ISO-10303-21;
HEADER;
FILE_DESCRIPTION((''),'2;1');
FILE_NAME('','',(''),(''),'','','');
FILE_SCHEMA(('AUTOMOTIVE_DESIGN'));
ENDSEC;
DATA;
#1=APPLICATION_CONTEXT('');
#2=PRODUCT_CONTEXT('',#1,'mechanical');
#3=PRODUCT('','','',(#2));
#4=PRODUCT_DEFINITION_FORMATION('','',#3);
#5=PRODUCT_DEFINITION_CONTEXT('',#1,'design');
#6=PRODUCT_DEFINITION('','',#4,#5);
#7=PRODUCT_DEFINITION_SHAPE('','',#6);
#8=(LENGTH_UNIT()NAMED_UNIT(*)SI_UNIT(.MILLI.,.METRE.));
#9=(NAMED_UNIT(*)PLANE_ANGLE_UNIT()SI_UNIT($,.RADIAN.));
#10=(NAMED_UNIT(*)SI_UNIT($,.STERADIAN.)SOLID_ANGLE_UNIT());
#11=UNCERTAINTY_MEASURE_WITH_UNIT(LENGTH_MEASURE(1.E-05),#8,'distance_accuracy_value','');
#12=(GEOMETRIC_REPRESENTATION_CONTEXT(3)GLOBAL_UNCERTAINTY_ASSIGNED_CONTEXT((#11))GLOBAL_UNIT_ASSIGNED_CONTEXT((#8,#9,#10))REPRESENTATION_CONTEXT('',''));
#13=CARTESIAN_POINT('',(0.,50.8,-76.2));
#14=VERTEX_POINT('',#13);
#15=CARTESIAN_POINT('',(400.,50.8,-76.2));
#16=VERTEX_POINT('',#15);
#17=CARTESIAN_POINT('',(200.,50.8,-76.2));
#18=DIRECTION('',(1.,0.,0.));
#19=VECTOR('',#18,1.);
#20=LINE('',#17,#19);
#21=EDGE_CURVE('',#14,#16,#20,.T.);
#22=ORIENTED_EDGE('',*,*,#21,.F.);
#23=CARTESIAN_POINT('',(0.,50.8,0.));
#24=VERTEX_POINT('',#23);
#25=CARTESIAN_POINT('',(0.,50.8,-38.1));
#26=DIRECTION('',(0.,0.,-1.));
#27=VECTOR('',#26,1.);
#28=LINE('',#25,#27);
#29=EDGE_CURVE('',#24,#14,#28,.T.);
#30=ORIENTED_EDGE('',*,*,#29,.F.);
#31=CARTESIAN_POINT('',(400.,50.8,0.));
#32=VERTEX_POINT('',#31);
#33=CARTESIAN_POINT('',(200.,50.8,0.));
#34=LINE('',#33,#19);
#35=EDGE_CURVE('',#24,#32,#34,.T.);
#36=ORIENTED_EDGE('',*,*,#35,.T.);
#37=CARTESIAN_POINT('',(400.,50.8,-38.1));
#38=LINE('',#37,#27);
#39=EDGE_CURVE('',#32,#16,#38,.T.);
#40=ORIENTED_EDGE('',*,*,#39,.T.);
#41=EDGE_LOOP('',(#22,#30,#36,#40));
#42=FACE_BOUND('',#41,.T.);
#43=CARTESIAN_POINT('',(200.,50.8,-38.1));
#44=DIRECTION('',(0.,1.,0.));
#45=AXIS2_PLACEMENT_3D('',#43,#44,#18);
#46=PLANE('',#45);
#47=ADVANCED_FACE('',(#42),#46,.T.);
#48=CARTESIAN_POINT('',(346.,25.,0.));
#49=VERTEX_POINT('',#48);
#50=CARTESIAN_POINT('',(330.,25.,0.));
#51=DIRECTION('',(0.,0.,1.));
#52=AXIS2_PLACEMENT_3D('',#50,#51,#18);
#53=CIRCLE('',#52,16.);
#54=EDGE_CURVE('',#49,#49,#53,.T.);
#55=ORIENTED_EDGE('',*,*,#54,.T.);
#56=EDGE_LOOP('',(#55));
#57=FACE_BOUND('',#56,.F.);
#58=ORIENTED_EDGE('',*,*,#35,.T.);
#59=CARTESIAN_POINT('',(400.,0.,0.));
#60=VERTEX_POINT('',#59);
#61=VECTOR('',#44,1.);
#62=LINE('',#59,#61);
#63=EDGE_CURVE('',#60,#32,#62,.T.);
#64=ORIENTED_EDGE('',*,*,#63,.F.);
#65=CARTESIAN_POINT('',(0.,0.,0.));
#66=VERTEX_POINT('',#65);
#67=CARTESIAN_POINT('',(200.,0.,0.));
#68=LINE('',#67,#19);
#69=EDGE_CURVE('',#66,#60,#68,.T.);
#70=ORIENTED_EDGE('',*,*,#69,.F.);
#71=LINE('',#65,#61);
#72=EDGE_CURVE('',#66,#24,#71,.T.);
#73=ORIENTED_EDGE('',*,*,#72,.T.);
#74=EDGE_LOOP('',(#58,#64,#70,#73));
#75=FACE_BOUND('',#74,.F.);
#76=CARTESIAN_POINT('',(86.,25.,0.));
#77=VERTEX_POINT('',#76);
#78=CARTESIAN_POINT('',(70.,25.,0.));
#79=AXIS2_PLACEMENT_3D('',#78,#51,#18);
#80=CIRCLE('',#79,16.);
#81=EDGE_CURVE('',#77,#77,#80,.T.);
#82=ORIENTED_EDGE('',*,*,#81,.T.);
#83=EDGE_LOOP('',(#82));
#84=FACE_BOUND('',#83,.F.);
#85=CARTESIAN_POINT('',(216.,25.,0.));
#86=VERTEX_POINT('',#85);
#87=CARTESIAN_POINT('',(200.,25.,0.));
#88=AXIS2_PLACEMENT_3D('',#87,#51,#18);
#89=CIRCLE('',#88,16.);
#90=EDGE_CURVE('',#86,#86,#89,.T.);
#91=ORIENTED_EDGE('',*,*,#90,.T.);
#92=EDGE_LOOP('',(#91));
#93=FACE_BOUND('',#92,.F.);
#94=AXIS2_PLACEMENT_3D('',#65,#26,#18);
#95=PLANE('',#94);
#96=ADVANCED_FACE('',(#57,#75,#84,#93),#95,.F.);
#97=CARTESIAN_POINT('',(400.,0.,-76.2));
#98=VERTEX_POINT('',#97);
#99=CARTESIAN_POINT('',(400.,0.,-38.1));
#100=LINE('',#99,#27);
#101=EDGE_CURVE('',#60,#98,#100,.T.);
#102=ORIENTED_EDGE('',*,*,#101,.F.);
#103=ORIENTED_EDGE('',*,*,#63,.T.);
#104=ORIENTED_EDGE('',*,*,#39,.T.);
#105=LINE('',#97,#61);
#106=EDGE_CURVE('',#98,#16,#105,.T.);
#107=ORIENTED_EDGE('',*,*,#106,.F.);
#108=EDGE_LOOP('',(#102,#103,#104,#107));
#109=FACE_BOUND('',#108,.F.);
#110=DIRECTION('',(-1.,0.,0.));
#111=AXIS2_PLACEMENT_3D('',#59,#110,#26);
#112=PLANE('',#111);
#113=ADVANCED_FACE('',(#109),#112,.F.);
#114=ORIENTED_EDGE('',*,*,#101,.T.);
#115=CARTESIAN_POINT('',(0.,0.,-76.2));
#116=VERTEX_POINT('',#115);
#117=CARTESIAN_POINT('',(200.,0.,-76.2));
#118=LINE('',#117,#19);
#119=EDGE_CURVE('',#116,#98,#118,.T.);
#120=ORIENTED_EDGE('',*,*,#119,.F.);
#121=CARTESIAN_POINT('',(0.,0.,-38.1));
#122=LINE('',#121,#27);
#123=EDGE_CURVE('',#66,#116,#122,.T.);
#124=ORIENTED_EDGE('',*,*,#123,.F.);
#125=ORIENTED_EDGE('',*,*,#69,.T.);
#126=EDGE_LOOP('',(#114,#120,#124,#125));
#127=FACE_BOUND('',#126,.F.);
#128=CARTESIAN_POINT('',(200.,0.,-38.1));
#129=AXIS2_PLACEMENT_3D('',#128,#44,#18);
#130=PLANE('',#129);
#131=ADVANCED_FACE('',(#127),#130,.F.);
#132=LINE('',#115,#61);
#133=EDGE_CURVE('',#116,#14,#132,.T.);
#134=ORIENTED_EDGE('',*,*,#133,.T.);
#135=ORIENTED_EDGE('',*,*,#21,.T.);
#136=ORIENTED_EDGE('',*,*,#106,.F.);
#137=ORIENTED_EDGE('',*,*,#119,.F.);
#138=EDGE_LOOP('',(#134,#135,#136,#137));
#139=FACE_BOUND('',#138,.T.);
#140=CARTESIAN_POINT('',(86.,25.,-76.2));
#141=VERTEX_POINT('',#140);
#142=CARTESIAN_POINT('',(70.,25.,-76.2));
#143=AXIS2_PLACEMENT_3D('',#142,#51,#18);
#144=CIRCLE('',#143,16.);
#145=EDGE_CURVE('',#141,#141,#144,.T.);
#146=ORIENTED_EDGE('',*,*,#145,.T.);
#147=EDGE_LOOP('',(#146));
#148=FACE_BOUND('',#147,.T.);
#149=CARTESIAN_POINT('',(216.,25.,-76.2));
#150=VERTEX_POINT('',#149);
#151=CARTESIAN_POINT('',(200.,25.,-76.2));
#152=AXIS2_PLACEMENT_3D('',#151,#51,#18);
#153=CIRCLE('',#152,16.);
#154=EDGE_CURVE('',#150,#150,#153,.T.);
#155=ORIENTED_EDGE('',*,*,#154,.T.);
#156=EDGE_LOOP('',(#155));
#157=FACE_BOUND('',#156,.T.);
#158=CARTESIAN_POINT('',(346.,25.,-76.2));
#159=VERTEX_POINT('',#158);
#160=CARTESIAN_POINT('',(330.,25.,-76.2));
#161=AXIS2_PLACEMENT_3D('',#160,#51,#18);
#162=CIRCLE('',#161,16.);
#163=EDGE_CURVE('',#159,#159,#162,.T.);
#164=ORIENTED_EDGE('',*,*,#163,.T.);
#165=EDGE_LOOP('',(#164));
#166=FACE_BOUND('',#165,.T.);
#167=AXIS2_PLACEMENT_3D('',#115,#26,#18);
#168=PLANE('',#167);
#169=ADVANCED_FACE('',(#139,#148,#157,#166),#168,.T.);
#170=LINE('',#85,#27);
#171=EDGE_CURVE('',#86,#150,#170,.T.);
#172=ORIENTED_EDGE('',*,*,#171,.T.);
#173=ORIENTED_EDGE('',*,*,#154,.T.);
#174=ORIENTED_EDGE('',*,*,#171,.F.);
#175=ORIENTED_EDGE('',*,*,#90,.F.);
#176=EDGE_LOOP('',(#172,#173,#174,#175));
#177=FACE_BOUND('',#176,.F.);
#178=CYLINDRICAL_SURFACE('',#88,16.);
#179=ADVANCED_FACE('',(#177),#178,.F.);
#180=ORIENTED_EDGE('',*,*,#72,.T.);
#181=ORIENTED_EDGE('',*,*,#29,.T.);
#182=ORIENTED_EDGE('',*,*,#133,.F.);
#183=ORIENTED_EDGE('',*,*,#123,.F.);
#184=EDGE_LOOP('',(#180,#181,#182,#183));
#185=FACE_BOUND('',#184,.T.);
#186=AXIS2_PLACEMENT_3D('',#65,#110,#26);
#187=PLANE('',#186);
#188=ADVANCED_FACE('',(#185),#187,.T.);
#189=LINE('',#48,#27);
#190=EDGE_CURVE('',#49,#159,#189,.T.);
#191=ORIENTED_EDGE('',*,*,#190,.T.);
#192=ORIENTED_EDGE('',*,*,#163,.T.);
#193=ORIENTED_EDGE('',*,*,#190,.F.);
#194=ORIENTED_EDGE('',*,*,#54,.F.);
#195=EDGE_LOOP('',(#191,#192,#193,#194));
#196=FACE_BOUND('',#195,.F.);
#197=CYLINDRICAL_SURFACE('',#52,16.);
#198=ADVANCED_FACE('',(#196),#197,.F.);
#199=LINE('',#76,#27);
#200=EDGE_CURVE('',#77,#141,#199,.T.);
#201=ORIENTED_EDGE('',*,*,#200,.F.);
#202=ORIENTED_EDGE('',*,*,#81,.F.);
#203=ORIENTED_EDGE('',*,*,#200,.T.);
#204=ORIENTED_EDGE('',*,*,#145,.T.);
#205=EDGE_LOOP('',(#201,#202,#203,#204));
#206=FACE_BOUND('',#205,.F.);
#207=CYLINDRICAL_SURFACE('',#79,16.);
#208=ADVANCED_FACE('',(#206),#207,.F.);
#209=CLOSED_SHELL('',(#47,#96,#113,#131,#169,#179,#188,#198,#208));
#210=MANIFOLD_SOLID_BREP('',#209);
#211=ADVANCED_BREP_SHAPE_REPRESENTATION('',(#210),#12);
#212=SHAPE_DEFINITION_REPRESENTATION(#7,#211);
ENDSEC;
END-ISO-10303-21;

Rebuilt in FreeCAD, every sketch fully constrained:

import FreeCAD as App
import Part
import Sketcher

V = App.Vector
Q = App.Units.Quantity

doc = App.newDocument("Part")
body = doc.addObject("PartDesign::Body", "Body")

# Sketch on XZ plane
sketch1 = body.newObject("Sketcher::SketchObject", "Sketch")
sketch1.AttachmentSupport = (doc.getObject("XZ_Plane"), [""])
sketch1.MapMode = "FlatFace"
sketch1.addGeometry(Part.LineSegment(V(0, -76, 0), V(0, 0, 0)), False)
sketch1.addGeometry(Part.LineSegment(V(0, 0, 0), V(400, 0, 0)), False)
sketch1.addGeometry(Part.LineSegment(V(400, 0, 0), V(400, -76, 0)), False)
sketch1.addGeometry(Part.LineSegment(V(400, -76, 0), V(0, -76, 0)), False)
sketch1.addConstraint(Sketcher.Constraint("Coincident", 0, 2, 1, 1))
sketch1.addConstraint(Sketcher.Constraint("Coincident", 1, 2, 2, 1))
sketch1.addConstraint(Sketcher.Constraint("Coincident", 2, 2, 3, 1))
sketch1.addConstraint(Sketcher.Constraint("Coincident", 3, 2, 0, 1))
sketch1.addConstraint(Sketcher.Constraint("Vertical", 0))
sketch1.addConstraint(Sketcher.Constraint("Horizontal", 1))
sketch1.addConstraint(Sketcher.Constraint("Vertical", 2))
sketch1.addConstraint(Sketcher.Constraint("Horizontal", 3))
sketch1.addConstraint(Sketcher.Constraint("Coincident", 0, 2, -1, 1))
sketch1.addConstraint(Sketcher.Constraint("DistanceX", 1, 1, 1, 2, Q("400 mm")))
sketch1.addConstraint(Sketcher.Constraint("DistanceY", 0, 1, 0, 2, Q("76.2 mm")))
pad1 = body.newObject("PartDesign::Pad", "Pad")
pad1.Profile = sketch1
pad1.Length = 50.8
pad1.Reversed = True

# Sketch on XY plane
sketch2 = body.newObject("Sketcher::SketchObject", "Sketch001")
sketch2.AttachmentSupport = (doc.getObject("XY_Plane"), [""])
sketch2.MapMode = "FlatFace"
sketch2.addGeometry(Part.Circle(V(70, 25, 0), V(0, 0, 1), 16), False)
sketch2.addGeometry(Part.Circle(V(200, 25, 0), V(0, 0, 1), 16), False)
sketch2.addGeometry(Part.Circle(V(330, 25, 0), V(0, 0, 1), 16), False)
sketch2.addConstraint(Sketcher.Constraint("Equal", 0, 1))
sketch2.addConstraint(Sketcher.Constraint("Equal", 1, 2))
sketch2.addConstraint(Sketcher.Constraint("Horizontal", 0, 3, 1, 3))
sketch2.addConstraint(Sketcher.Constraint("Horizontal", 1, 3, 2, 3))
sketch2.addConstraint(Sketcher.Constraint("Diameter", 0, Q("32 mm")))
sketch2.addConstraint(Sketcher.Constraint("DistanceX", -1, 1, 0, 3, Q("70 mm")))
sketch2.addConstraint(Sketcher.Constraint("DistanceY", -1, 1, 0, 3, Q("25 mm")))
sketch2.addConstraint(Sketcher.Constraint("DistanceX", -1, 1, 1, 3, Q("200 mm")))
sketch2.addConstraint(Sketcher.Constraint("DistanceX", -1, 1, 2, 3, Q("330 mm")))
pocket1 = body.newObject("PartDesign::Pocket", "Pocket")
pocket1.Profile = sketch2
pocket1.Length = 76.2

doc.recompute()
